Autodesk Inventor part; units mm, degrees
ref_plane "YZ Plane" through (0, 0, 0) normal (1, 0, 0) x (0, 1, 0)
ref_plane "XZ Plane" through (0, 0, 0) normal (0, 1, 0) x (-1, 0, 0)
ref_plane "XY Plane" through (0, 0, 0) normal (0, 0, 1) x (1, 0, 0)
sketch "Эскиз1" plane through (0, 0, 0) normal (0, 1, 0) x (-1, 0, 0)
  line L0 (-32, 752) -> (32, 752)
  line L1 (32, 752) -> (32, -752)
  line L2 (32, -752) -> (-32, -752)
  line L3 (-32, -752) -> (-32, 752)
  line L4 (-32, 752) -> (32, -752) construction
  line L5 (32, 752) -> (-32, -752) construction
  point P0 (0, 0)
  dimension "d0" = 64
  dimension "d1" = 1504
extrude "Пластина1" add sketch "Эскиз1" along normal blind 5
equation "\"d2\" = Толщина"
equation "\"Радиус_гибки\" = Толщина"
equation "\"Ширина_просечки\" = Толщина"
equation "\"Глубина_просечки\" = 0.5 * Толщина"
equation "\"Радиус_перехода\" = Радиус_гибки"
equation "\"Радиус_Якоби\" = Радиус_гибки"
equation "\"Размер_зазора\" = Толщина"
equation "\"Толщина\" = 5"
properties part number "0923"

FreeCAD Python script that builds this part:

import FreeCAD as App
import Part
import Sketcher


def add_polygon(sketch, points):
    """Adds a closed chain of lines whose ends are joined by coincident constraints."""
    first, n = sketch.GeometryCount, len(points)
    for a, b in zip(points, points[1:] + points[:1]):
        sketch.addGeometry(Part.LineSegment(App.Vector(*a, 0), App.Vector(*b, 0)), False)
    for i in range(n):
        sketch.addConstraint(Sketcher.Constraint("Coincident", first + i, 2, first + (i + 1) % n, 1))

doc = App.newDocument("Part")
body = doc.addObject("PartDesign::Body", "Body")

# Sketch on XZ plane
sketch1 = body.newObject("Sketcher::SketchObject", "Sketch")
sketch1.AttachmentSupport = (doc.getObject("XZ_Plane"), [""])
sketch1.MapMode = "FlatFace"
add_polygon(sketch1, [(-32, 752), (32, 752), (32, -752), (-32, -752)])  # lines 0-3
sketch1.addConstraint(Sketcher.Constraint("Horizontal", 0))
sketch1.addConstraint(Sketcher.Constraint("Vertical", 1))
sketch1.addConstraint(Sketcher.Constraint("Horizontal", 2))
sketch1.addConstraint(Sketcher.Constraint("Vertical", 3))
sketch1.addConstraint(Sketcher.Constraint("Symmetric", 0, 2, 2, 2, -1, 1))
sketch1.addConstraint(Sketcher.Constraint("DistanceX", 0, 1, 0, 2, 64.0))
sketch1.addConstraint(Sketcher.Constraint("DistanceY", 1, 2, 1, 1, 1504.0))
pad1 = body.newObject("PartDesign::Pad", "Pad")
pad1.Profile = sketch1
pad1.Length = 5
pad1.Reversed = True

doc.recompute()
